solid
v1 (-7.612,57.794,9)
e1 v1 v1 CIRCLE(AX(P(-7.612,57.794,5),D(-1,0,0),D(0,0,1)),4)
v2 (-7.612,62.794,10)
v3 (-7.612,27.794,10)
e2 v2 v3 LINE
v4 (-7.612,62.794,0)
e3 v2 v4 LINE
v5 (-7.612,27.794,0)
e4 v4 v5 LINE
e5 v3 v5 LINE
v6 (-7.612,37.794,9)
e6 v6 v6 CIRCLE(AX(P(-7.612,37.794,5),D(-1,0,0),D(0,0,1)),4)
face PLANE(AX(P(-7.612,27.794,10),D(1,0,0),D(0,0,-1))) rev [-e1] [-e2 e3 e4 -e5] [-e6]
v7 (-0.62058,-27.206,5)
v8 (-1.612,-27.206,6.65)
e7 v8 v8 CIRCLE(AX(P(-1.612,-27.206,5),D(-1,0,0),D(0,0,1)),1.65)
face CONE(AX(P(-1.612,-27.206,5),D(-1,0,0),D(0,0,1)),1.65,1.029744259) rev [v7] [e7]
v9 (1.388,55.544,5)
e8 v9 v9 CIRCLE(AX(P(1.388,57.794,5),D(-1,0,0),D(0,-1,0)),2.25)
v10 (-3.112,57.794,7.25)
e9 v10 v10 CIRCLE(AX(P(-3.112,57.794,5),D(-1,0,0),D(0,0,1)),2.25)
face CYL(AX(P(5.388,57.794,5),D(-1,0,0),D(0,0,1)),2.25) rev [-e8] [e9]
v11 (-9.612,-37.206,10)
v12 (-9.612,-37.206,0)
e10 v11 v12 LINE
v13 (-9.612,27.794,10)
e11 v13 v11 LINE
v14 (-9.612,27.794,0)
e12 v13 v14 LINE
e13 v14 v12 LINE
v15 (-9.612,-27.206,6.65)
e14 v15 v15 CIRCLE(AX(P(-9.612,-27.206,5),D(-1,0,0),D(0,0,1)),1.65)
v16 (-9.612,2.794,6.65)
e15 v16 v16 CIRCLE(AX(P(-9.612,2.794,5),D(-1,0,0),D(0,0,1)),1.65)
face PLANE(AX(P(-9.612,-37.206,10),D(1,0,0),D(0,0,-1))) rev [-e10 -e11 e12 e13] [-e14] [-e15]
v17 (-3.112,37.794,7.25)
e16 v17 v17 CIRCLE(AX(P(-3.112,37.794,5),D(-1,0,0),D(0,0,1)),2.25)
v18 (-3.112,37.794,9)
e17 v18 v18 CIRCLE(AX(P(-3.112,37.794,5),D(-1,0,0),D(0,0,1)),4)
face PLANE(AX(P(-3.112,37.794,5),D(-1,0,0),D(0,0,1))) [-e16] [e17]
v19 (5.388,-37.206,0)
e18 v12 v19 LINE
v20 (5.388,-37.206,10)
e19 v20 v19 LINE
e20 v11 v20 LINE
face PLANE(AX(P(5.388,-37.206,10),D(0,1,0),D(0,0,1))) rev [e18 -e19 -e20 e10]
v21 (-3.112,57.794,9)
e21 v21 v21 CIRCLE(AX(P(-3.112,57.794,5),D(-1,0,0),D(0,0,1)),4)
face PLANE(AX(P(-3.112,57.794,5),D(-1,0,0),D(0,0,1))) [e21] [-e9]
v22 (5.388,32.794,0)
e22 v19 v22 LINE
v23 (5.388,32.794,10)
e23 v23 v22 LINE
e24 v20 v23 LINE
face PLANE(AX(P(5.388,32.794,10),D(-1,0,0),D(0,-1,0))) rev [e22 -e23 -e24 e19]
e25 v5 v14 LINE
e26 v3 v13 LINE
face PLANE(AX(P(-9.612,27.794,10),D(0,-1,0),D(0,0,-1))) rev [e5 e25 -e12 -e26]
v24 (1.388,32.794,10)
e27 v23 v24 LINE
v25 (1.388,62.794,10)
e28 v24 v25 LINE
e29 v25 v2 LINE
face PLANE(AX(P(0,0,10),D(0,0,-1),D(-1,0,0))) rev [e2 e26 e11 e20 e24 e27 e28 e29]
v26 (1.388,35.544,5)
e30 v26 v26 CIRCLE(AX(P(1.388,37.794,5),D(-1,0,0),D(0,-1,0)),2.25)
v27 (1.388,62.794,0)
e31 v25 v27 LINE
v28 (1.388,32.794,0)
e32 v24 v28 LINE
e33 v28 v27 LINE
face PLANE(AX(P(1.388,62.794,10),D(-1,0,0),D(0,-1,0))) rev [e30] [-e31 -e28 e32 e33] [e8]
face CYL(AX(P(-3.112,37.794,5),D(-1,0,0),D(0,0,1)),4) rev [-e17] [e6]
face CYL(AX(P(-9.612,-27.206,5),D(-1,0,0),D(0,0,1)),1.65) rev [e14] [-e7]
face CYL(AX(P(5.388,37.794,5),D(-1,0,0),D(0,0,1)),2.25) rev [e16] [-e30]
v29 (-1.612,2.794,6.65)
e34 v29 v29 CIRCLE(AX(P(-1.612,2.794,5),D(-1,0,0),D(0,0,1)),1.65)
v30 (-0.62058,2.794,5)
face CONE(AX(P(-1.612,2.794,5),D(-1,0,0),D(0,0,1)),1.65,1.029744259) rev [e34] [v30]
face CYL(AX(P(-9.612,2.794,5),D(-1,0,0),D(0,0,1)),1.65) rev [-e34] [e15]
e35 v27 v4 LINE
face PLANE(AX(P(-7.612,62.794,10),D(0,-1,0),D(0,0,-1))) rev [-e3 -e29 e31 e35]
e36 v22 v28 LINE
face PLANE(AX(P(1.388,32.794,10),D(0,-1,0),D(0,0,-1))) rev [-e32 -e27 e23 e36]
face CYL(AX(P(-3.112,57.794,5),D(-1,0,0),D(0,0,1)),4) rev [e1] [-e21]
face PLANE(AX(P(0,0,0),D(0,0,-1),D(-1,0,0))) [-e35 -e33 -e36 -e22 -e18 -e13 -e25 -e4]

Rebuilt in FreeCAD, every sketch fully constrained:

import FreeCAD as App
import Part
import Sketcher

doc = App.newDocument("Part")
body = doc.addObject("PartDesign::Body", "Body")

# Sketch on XY plane
sketch1 = body.newObject("Sketcher::SketchObject", "Sketch")
sketch1.AttachmentSupport = (doc.getObject("XY_Plane"), [""])
sketch1.MapMode = "FlatFace"
sketch1.addGeometry([
    Part.LineSegment(App.Vector(1.4, 62.8, 0), App.Vector(-7.6, 62.8, 0)),  # 0
    Part.LineSegment(App.Vector(-7.6, 62.8, 0), App.Vector(-7.6, 27.8, 0)),  # 1
    Part.LineSegment(App.Vector(-7.6, 27.8, 0), App.Vector(-9.6, 27.8, 0)),  # 2
    Part.LineSegment(App.Vector(-9.6, 27.8, 0), App.Vector(-9.6, -37.2, 0)),  # 3
    Part.LineSegment(App.Vector(-9.6, -37.2, 0), App.Vector(5.4, -37.2, 0)),  # 4
    Part.LineSegment(App.Vector(5.4, -37.2, 0), App.Vector(5.4, 32.8, 0)),  # 5
    Part.LineSegment(App.Vector(5.4, 32.8, 0), App.Vector(1.4, 32.8, 0)),  # 6
    Part.LineSegment(App.Vector(1.4, 32.8, 0), App.Vector(1.4, 62.8, 0)),  # 7
], False)
sketch1.addConstraint([
    Sketcher.Constraint("Coincident", 0, 2, 1, 1),
    Sketcher.Constraint("Coincident", 1, 2, 2, 1),
    Sketcher.Constraint("Coincident", 2, 2, 3, 1),
    Sketcher.Constraint("Coincident", 3, 2, 4, 1),
    Sketcher.Constraint("Coincident", 4, 2, 5, 1),
    Sketcher.Constraint("Coincident", 5, 2, 6, 1),
    Sketcher.Constraint("Coincident", 6, 2, 7, 1),
    Sketcher.Constraint("Coincident", 7, 2, 0, 1),
    Sketcher.Constraint("Horizontal", 0),
    Sketcher.Constraint("Vertical", 1),
    Sketcher.Constraint("Horizontal", 2),
    Sketcher.Constraint("Vertical", 3),
    Sketcher.Constraint("Horizontal", 4),
    Sketcher.Constraint("Vertical", 5),
    Sketcher.Constraint("Horizontal", 6),
    Sketcher.Constraint("Vertical", 7),
    Sketcher.Constraint("DistanceX", 0, 2, 0, 1, 9.0),
    Sketcher.Constraint("DistanceX", 2, 2, 2, 1, 2.0),
    Sketcher.Constraint("DistanceX", 4, 1, 4, 2, 15.0),
    Sketcher.Constraint("DistanceY", 1, 2, 1, 1, 35.0),
    Sketcher.Constraint("DistanceY", 3, 2, 3, 1, 65.0),
    Sketcher.Constraint("DistanceY", 5, 1, 5, 2, 70.0),
    Sketcher.Constraint("DistanceX", 0, 2, -1, 1, 7.612),
    Sketcher.Constraint("DistanceY", -1, 1, 0, 2, 62.794),
])
pad1 = body.newObject("PartDesign::Pad", "Pad")
pad1.Profile = sketch1
pad1.Length = 10

# Sketch on YZ plane
sketch2 = body.newObject("Sketcher::SketchObject", "Sketch001")
sketch2.AttachmentSupport = (doc.getObject("YZ_Plane"), [""])
sketch2.MapMode = "FlatFace"
sketch2.AttachmentOffset = App.Placement(App.Vector(0, 0, -7.612), App.Rotation())
sketch2.addGeometry([
    Part.Circle(App.Vector(57.8, 5, 0), App.Vector(0, 0, 1), 4),
    Part.Circle(App.Vector(37.8, 5, 0), App.Vector(0, 0, 1), 4),
], False)
sketch2.addConstraint([
    Sketcher.Constraint("Equal", 0, 1),
    Sketcher.Constraint("Horizontal", 0, 3, 1, 3),
    Sketcher.Constraint("Diameter", 0, 8.0),
    Sketcher.Constraint("DistanceY", -1, 1, 0, 3, 5.0),
    Sketcher.Constraint("DistanceX", 1, 3, 0, 3, 20.0),
    Sketcher.Constraint("DistanceX", -1, 1, 0, 3, 57.794),
])
pocket1 = body.newObject("PartDesign::Pocket", "Pocket")
pocket1.Profile = sketch2
pocket1.Length = 4.5
pocket1.Reversed = True

# Sketch on YZ plane
sketch3 = body.newObject("Sketcher::SketchObject", "Sketch002")
sketch3.AttachmentSupport = (doc.getObject("YZ_Plane"), [""])
sketch3.MapMode = "FlatFace"
sketch3.AttachmentOffset = App.Placement(App.Vector(0, 0, -3.112), App.Rotation())
sketch3.addGeometry([
    Part.Circle(App.Vector(37.8, 5, 0), App.Vector(0, 0, 1), 2.2),
    Part.Circle(App.Vector(57.8, 5, 0), App.Vector(0, 0, 1), 2.2),
], False)
sketch3.addConstraint([
    Sketcher.Constraint("Equal", 0, 1),
    Sketcher.Constraint("Horizontal", 0, 3, 1, 3),
    Sketcher.Constraint("Diameter", 0, 4.5),
    Sketcher.Constraint("DistanceY", -1, 1, 0, 3, 5.0),
    Sketcher.Constraint("DistanceX", 0, 3, 1, 3, 20.0),
    Sketcher.Constraint("DistanceX", -1, 1, 0, 3, 37.794),
])
pocket2 = body.newObject("PartDesign::Pocket", "Pocket001")
pocket2.Profile = sketch3
pocket2.Type = "ThroughAll"
pocket2.Reversed = True

# Sketch on YZ plane
sketch4 = body.newObject("Sketcher::SketchObject", "Sketch003")
sketch4.AttachmentSupport = (doc.getObject("YZ_Plane"), [""])
sketch4.MapMode = "FlatFace"
sketch4.AttachmentOffset = App.Placement(App.Vector(0, 0, -9.612), App.Rotation())
sketch4.addGeometry([
    Part.Circle(App.Vector(2.8, 5, 0), App.Vector(0, 0, 1), 1.6),
    Part.Circle(App.Vector(-27.2, 5, 0), App.Vector(0, 0, 1), 1.6),
], False)
sketch4.addConstraint([
    Sketcher.Constraint("Equal", 0, 1),
    Sketcher.Constraint("Horizontal", 0, 3, 1, 3),
    Sketcher.Constraint("Diameter", 0, 3.3),
    Sketcher.Constraint("DistanceY", -1, 1, 0, 3, 5.0),
    Sketcher.Constraint("DistanceX", 1, 3, 0, 3, 30.0),
    Sketcher.Constraint("DistanceX", -1, 1, 0, 3, 2.794),
])
doc.recompute()
hole = body.newObject("PartDesign::Hole", "Hole")
hole.Profile = sketch4
hole.ThreadType = "None"
hole.Diameter = 3.3
hole.DepthType = "Dimension"
hole.Depth = 8
hole.DrillPoint = "Angled"
hole.DrillPointAngle = 118
hole.Reversed = True

doc.recompute()
